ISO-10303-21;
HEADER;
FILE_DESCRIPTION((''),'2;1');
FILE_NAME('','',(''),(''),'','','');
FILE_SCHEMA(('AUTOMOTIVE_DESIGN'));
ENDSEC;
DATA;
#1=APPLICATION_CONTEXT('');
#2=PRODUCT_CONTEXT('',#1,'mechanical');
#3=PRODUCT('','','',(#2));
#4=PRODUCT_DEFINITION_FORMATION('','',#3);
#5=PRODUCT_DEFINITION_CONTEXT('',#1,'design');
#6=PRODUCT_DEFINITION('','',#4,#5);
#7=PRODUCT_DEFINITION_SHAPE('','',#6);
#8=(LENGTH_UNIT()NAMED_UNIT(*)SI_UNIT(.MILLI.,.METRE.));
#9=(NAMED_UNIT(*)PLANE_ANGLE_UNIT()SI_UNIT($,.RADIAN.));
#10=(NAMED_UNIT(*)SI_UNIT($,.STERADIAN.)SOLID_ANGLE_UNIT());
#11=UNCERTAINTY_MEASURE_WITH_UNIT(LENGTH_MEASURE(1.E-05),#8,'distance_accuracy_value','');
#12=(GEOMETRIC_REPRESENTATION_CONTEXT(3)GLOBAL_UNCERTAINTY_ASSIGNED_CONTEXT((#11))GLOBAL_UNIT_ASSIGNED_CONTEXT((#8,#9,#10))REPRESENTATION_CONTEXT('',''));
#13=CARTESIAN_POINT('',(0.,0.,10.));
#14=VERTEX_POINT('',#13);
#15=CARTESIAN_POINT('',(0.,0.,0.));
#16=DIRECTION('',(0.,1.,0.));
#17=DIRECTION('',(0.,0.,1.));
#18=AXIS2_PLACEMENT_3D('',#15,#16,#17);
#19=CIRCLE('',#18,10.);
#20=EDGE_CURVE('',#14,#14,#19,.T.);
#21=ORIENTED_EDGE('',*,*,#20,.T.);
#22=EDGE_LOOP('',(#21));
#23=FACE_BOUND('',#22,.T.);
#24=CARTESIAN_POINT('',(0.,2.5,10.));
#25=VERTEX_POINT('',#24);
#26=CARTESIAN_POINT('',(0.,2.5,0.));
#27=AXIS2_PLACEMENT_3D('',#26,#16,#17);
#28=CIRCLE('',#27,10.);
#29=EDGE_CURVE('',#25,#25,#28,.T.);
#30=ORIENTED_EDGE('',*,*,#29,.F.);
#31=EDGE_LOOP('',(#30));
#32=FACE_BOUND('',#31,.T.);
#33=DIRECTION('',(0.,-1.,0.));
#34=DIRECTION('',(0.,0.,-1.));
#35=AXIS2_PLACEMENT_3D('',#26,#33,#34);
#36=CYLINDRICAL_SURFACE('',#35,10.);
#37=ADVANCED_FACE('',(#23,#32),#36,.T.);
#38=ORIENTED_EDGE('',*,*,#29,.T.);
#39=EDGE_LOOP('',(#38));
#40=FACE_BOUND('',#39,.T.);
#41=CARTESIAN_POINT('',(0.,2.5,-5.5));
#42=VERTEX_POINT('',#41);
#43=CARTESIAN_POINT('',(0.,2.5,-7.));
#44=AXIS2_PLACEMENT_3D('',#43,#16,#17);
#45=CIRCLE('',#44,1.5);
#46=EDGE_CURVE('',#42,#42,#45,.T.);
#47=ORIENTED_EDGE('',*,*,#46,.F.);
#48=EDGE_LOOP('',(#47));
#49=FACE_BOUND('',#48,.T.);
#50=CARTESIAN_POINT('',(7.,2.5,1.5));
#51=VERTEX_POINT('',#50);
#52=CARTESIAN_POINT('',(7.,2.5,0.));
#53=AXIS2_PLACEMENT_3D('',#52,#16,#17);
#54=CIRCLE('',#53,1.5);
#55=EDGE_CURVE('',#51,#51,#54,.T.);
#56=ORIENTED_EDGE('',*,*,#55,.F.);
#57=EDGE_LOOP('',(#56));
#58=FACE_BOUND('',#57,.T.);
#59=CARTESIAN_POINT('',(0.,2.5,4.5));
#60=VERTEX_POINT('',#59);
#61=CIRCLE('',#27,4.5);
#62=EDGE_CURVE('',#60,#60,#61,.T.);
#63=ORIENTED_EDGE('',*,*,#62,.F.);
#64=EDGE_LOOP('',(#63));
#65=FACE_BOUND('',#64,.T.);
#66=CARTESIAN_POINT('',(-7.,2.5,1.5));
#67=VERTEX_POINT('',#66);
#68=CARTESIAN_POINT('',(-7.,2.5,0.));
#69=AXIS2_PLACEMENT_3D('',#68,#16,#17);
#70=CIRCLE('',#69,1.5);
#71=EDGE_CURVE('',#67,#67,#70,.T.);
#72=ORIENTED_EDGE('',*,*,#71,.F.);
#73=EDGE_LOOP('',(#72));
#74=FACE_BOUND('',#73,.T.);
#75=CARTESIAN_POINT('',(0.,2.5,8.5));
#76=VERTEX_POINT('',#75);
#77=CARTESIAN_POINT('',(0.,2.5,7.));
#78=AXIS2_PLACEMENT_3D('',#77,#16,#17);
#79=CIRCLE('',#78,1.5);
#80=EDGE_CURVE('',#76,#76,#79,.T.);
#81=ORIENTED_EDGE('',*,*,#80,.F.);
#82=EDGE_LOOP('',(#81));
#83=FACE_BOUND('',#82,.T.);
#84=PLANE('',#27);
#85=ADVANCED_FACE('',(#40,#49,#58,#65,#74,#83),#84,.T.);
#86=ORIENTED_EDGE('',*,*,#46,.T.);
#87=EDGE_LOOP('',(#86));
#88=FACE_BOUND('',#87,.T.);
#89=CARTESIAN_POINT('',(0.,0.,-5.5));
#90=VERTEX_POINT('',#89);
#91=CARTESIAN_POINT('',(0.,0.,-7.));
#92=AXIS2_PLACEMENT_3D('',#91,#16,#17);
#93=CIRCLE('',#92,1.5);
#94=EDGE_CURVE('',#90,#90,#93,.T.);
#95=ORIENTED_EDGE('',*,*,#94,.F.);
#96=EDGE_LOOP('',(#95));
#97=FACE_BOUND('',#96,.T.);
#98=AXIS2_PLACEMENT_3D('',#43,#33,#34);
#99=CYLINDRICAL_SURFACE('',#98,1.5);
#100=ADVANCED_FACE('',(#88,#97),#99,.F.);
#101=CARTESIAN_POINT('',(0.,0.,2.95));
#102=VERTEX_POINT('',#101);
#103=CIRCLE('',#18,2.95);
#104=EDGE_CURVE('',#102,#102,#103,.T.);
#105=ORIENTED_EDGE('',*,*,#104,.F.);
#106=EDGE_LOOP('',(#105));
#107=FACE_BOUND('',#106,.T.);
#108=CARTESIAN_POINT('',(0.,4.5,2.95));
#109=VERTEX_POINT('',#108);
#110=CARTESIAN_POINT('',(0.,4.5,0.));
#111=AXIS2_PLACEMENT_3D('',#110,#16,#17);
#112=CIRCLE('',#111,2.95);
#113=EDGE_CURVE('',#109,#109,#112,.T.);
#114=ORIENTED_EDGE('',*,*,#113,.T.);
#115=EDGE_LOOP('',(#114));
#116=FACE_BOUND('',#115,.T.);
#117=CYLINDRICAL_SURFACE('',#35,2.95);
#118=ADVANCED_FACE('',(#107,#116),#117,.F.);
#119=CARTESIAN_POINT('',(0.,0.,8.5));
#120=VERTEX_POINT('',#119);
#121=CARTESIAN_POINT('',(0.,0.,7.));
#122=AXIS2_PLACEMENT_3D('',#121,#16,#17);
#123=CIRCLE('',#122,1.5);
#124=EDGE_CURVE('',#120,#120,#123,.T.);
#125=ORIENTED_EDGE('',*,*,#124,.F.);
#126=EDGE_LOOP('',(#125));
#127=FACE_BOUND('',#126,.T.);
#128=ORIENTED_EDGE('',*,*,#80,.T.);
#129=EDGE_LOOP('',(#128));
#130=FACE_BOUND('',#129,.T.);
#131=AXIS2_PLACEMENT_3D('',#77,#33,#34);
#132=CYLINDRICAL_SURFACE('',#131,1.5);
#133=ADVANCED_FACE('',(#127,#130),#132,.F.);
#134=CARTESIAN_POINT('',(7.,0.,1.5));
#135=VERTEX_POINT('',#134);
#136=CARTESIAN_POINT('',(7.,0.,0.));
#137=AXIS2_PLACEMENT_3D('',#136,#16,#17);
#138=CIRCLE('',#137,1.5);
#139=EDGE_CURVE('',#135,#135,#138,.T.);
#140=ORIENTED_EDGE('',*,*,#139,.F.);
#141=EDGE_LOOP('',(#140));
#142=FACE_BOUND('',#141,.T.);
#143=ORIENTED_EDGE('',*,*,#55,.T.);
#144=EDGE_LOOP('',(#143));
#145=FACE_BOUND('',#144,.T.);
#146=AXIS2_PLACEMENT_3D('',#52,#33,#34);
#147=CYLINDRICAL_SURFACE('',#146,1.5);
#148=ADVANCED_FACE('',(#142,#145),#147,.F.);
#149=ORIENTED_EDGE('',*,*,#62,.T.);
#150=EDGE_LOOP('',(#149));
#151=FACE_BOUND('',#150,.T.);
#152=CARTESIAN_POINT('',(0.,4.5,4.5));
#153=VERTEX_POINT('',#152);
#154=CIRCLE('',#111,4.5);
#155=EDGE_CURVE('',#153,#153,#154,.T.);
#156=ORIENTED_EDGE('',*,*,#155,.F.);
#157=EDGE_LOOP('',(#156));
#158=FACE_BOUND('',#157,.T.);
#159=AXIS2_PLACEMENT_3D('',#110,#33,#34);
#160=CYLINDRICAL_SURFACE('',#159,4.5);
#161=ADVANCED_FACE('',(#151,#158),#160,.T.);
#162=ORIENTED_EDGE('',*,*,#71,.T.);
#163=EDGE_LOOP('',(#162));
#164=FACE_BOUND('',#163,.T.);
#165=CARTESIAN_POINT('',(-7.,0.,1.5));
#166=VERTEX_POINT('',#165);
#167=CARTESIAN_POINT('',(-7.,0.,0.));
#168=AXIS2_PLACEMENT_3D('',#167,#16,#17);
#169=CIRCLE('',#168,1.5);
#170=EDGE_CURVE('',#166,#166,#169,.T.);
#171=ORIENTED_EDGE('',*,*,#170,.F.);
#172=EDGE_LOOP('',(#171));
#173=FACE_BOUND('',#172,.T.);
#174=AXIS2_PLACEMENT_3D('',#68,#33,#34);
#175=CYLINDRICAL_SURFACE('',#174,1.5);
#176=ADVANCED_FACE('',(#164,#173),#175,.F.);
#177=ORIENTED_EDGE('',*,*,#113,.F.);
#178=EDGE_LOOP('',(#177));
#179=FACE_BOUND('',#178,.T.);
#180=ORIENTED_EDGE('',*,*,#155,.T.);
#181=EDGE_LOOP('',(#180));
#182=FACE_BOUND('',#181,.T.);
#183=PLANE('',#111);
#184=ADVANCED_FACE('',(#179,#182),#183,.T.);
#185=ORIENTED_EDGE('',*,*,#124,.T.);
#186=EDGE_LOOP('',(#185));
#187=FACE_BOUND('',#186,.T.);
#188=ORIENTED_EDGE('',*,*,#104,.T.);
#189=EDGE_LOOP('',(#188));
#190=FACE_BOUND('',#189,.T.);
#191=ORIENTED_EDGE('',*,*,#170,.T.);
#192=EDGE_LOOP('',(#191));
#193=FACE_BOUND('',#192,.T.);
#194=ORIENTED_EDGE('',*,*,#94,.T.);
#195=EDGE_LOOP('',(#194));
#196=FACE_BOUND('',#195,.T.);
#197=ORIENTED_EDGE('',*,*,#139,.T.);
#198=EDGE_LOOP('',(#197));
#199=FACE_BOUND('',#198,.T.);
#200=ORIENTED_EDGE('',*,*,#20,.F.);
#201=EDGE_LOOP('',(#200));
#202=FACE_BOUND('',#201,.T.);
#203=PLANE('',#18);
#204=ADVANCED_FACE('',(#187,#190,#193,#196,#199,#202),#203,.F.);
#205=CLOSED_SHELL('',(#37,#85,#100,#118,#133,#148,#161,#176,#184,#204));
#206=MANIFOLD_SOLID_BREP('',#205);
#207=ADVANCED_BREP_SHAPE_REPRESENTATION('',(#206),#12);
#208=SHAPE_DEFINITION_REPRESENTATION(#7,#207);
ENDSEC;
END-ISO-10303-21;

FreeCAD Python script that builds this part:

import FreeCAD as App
import Part
import Sketcher
Q = App.Units.Quantity

doc = App.newDocument("Part")
params = doc.addObject("Spreadsheet::Sheet", "Params")
for row, (alias, value) in enumerate([
    ("sketch1_diameter", "20 mm"),
    ("sketch1_diameter2", "3 mm"),
    ("sketch1_diameter3", "5.9 mm"),
    ("pad1_length", "2.5 mm"),
    ("sketch2_diameter", "9 mm"),
    ("sketch2_diameter2", "5.9 mm"),
    ("pad2_length", "2 mm"),
], start=1):
    params.set(f"A{row}", alias)
    params.set(f"B{row}", "=" + value)
    params.setAlias(f"B{row}", alias)

body = doc.addObject("PartDesign::Body", "Body")

# Sketch on XZ plane
sketch1 = body.newObject("Sketcher::SketchObject", "Sketch")
sketch1.AttachmentSupport = (doc.getObject("XZ_Plane"), [""])
sketch1.MapMode = "FlatFace"
sketch1.addGeometry([
    Part.Circle(App.Vector(0, 0, 0), App.Vector(0, 0, 1), 10),  # 0
    Part.Circle(App.Vector(0, 7, 0), App.Vector(0, 0, 1), 1.5),  # 1
    Part.Circle(App.Vector(-7, 0, 0), App.Vector(0, 0, 1), 1.5),  # 2
    Part.Circle(App.Vector(0, 0, 0), App.Vector(0, 0, 1), 3),  # 3
    Part.Circle(App.Vector(7, 0, 0), App.Vector(0, 0, 1), 1.5),  # 4
    Part.Circle(App.Vector(0, -7, 0), App.Vector(0, 0, 1), 1.5),  # 5
], False)
sketch1.addConstraint([
    Sketcher.Constraint("Coincident", 0, 3, -1, 1),
    Sketcher.Constraint("Coincident", 3, 3, -1, 1),
    Sketcher.Constraint("Equal", 1, 2),
    Sketcher.Constraint("Equal", 2, 4),
    Sketcher.Constraint("Equal", 4, 5),
    Sketcher.Constraint("Symmetric", 2, 3, 4, 3, -1, 1),
    Sketcher.Constraint("Symmetric", 1, 3, 5, 3, -1, 1),
    Sketcher.Constraint("PointOnObject", 1, 3, -2),
    Sketcher.Constraint("PointOnObject", 2, 3, -1),
    Sketcher.Constraint("Diameter", 0, Q("20 mm")),
    Sketcher.Constraint("Diameter", 1, Q("3 mm")),
    Sketcher.Constraint("Diameter", 3, Q("5.9 mm")),
    Sketcher.Constraint("DistanceY", -1, 1, 1, 3, Q("7 mm")),
    Sketcher.Constraint("DistanceX", 2, 3, -1, 1, Q("7 mm")),
])
sketch1.setExpression("Constraints[9]", "Params.sketch1_diameter")
sketch1.setExpression("Constraints[10]", "Params.sketch1_diameter2")
sketch1.setExpression("Constraints[11]", "Params.sketch1_diameter3")
pad1 = body.newObject("PartDesign::Pad", "Pad")
pad1.Profile = sketch1
pad1.setExpression("Length", "Params.pad1_length")
pad1.Reversed = True

# Sketch on XZ plane
sketch2 = body.newObject("Sketcher::SketchObject", "Sketch001")
sketch2.AttachmentSupport = (doc.getObject("XZ_Plane"), [""])
sketch2.MapMode = "FlatFace"
sketch2.AttachmentOffset = App.Placement(App.Vector(0, 0, -2.5), App.Rotation())
sketch2.addGeometry([
    Part.Circle(App.Vector(0, 0, 0), App.Vector(0, 0, 1), 4.5),
    Part.Circle(App.Vector(0, 0, 0), App.Vector(0, 0, 1), 3),
], False)
sketch2.addConstraint([
    Sketcher.Constraint("Coincident", 0, 3, -1, 1),
    Sketcher.Constraint("Coincident", 1, 3, -1, 1),
    Sketcher.Constraint("Diameter", 0, Q("9 mm")),
    Sketcher.Constraint("Diameter", 1, Q("5.9 mm")),
])
sketch2.setExpression("Constraints[2]", "Params.sketch2_diameter")
sketch2.setExpression("Constraints[3]", "Params.sketch2_diameter2")
pad2 = body.newObject("PartDesign::Pad", "Pad001")
pad2.Profile = sketch2
pad2.setExpression("Length", "Params.pad2_length")
pad2.Reversed = True

doc.recompute()
